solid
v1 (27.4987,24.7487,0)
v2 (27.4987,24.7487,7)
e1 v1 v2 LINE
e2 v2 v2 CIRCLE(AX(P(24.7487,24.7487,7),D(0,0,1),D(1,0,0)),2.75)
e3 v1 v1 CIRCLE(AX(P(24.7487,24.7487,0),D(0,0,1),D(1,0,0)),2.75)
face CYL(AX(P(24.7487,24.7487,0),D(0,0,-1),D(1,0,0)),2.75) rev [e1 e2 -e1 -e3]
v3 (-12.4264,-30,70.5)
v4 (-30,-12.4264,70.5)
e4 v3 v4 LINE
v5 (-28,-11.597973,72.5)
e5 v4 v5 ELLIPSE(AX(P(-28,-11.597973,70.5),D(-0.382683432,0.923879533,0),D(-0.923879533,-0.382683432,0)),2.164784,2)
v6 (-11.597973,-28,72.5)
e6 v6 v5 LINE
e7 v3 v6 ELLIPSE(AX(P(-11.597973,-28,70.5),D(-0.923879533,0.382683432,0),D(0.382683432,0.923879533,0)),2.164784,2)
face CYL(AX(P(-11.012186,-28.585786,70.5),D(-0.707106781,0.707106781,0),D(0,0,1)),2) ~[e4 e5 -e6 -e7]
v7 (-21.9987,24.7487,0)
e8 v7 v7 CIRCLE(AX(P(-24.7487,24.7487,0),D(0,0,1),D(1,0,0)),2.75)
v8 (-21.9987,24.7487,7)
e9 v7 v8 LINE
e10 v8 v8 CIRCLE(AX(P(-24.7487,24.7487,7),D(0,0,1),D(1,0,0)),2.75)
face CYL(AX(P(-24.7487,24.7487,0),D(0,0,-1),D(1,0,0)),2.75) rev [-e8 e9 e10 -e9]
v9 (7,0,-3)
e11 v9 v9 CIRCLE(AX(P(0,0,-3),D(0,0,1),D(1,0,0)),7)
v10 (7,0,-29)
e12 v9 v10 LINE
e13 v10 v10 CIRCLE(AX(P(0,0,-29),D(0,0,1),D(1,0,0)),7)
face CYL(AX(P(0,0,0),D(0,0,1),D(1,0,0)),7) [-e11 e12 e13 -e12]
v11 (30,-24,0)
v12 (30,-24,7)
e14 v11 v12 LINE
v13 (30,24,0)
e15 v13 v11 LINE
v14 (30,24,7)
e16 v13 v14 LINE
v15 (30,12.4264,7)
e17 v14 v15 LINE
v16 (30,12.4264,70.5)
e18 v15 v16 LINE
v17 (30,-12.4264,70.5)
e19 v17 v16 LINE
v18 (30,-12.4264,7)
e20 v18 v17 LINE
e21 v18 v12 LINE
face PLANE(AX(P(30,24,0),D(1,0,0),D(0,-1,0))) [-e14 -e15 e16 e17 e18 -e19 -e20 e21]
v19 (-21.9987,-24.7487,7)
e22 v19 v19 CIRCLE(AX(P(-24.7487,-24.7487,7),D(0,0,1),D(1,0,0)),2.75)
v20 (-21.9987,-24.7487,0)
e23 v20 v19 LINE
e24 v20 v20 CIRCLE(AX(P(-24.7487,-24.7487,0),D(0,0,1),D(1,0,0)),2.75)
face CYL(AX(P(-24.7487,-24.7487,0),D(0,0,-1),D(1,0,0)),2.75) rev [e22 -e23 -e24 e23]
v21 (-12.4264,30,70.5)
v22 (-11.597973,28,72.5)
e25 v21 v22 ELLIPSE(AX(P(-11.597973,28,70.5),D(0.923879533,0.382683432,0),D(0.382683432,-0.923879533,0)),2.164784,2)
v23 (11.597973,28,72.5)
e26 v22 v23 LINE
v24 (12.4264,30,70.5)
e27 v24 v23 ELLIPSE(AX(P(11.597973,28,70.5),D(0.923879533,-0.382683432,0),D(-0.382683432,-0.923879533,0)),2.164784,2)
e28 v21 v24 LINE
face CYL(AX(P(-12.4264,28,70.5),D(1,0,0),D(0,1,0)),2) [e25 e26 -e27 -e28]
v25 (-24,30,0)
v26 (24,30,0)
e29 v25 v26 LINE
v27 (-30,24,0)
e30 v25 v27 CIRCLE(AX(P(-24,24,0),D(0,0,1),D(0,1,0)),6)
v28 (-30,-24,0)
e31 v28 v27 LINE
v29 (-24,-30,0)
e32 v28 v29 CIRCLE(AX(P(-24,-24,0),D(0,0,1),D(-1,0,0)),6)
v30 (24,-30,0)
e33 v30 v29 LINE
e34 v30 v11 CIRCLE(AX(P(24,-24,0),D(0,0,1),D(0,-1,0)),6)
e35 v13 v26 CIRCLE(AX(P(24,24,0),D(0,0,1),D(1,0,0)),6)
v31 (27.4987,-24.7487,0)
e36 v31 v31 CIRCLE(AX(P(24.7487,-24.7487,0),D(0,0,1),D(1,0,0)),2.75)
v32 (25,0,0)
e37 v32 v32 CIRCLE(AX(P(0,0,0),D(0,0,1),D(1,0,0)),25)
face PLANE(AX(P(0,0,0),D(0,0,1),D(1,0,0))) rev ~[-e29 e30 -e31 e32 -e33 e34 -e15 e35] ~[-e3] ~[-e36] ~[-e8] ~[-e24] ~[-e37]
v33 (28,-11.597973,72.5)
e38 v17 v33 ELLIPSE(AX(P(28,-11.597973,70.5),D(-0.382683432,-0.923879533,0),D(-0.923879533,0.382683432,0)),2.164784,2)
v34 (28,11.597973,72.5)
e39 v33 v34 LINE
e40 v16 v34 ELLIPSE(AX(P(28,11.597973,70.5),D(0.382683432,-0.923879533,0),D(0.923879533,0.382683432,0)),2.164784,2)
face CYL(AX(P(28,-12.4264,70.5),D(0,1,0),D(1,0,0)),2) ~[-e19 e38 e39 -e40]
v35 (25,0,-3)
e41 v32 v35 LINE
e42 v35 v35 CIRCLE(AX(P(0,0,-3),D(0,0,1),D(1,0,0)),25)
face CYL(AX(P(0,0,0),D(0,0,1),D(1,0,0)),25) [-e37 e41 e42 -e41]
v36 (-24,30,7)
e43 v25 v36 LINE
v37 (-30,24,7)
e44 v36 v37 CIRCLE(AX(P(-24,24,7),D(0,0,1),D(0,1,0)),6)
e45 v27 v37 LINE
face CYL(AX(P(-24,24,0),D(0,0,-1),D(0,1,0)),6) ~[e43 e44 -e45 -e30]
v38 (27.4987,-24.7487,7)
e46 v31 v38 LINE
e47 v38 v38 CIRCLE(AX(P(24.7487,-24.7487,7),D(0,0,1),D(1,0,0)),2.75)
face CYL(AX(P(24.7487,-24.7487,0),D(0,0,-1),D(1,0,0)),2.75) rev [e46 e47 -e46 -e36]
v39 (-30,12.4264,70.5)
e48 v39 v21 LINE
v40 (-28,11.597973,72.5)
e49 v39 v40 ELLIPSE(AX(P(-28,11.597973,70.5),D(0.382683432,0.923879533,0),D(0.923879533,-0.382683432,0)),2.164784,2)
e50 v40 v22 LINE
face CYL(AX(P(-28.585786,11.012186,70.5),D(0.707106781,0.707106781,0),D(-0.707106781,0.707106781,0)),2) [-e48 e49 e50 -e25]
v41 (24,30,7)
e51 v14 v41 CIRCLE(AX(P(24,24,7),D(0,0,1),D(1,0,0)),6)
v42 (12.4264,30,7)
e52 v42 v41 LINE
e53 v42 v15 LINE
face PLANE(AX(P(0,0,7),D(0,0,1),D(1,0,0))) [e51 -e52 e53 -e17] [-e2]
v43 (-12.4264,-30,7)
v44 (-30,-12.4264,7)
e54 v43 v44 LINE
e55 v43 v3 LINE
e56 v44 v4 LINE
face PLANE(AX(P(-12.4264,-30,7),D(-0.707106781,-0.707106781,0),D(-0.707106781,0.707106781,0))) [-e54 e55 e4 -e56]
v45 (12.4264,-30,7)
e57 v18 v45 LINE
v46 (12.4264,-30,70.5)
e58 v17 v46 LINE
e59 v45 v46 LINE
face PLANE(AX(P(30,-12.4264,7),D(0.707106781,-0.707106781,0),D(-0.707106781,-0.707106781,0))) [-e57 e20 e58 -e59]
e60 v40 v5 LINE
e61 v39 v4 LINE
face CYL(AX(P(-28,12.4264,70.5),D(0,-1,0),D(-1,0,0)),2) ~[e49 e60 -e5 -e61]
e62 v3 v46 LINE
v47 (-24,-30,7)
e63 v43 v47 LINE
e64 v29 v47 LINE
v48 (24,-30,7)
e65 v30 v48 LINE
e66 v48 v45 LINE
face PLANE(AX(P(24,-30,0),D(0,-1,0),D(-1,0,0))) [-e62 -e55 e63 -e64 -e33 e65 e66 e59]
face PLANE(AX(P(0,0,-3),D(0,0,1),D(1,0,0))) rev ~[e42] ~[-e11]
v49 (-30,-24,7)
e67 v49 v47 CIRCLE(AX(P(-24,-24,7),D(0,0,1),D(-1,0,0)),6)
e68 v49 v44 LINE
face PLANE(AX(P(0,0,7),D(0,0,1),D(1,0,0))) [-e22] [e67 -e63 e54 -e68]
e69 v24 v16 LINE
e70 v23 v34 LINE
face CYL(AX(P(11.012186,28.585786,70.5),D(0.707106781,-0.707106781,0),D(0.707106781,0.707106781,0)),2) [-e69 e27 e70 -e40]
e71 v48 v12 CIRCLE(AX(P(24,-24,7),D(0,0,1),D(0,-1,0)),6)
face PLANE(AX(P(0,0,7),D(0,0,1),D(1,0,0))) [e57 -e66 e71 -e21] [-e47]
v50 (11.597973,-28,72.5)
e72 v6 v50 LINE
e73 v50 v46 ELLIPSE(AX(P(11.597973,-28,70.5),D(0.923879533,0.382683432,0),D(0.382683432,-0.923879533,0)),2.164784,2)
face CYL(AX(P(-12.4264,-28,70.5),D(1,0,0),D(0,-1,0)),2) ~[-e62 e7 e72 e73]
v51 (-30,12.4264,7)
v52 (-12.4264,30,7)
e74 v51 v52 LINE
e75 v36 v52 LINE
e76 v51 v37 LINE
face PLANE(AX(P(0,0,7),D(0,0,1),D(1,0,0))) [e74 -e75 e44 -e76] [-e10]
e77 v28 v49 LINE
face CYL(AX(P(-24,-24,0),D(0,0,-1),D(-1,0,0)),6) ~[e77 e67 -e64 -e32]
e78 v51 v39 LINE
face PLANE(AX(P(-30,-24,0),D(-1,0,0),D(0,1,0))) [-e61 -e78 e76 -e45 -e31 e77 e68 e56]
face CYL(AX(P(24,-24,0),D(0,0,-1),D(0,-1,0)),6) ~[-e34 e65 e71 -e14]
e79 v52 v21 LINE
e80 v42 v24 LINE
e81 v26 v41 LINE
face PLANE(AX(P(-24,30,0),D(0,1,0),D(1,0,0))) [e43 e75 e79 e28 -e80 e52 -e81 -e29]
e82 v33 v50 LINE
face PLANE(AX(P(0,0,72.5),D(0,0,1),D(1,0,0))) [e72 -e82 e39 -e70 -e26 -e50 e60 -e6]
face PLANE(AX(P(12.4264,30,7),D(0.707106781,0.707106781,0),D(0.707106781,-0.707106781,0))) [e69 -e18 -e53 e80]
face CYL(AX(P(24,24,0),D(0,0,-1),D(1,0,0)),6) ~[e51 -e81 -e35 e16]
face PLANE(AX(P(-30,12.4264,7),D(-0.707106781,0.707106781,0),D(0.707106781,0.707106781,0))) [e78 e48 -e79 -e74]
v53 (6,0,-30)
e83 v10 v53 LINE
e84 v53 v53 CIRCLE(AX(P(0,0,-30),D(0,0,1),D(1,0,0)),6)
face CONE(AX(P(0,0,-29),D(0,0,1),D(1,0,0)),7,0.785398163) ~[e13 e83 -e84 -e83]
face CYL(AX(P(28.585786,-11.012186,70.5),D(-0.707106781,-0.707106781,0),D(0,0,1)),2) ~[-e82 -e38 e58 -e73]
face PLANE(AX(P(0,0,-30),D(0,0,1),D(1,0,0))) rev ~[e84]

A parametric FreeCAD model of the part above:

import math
import FreeCAD as App
import Part
import Sketcher
from FreeCAD import Vector


def edges_at(feature, points):
    """Names of the edges that pass closest to the given points."""
    edges = feature.Shape.Edges
    near = lambda p: min(range(len(edges)), key=lambda i: edges[i].distToShape(Part.Vertex(*p))[0])
    return sorted({f"Edge{near(p) + 1}" for p in points})

doc = App.newDocument("Part")
params = doc.addObject("Spreadsheet::Sheet", "Params")
for row, (alias, value) in enumerate([
    ("sketch1_radius", "6 mm"),
    ("sketch1_diameter", "5.5 mm"),
    ("sketch1_width", "48 mm"),
    ("pad1_length", "7 mm"),
    ("sketch2_diameter", "50 mm"),
    ("sketch2_diameter2", "14 mm"),
    ("pad2_length", "3 mm"),
    ("sketch3_diameter", "14 mm"),
    ("pad3_length", "30 mm"),
    ("pad4_length", "65.5 mm"),
    ("fillet_radius", "2 mm"),
    ("chamfer_size", "1 mm"),
], start=1):
    params.set(f"A{row}", alias)
    params.set(f"B{row}", "=" + value)
    params.setAlias(f"B{row}", alias)

body = doc.addObject("PartDesign::Body", "Body")

sketch1 = doc.addObject("Sketcher::SketchObject", "Sketch")
body.addObject(sketch1)
sketch1.AttachmentSupport = (doc.XY_Plane, [""])
sketch1.MapMode = "FlatFace"
sketch1.addGeometry([
    Part.LineSegment(Vector(24, 30, 0), Vector(-24, 30, 0)),
    Part.ArcOfCircle(Part.Circle(Vector(-24, 24, 0), Vector(0, 0, 1), 6), math.radians(90), math.radians(180)),
    Part.LineSegment(Vector(-30, 24, 0), Vector(-30, -24, 0)),
    Part.ArcOfCircle(Part.Circle(Vector(-24, -24, 0), Vector(0, 0, 1), 6), math.radians(180), math.radians(270)),
    Part.LineSegment(Vector(-24, -30, 0), Vector(24, -30, 0)),
    Part.ArcOfCircle(Part.Circle(Vector(24, -24, 0), Vector(0, 0, 1), 6), math.radians(-90), math.radians(0)),
    Part.LineSegment(Vector(30, -24, 0), Vector(30, 24, 0)),
    Part.ArcOfCircle(Part.Circle(Vector(24, 24, 0), Vector(0, 0, 1), 6), math.radians(0), math.radians(90)),
    Part.Circle(Vector(-24.7487, -24.7487, 0), Vector(0, 0, 1), 2.75),
    Part.Circle(Vector(24.7487, -24.7487, 0), Vector(0, 0, 1), 2.75),
    Part.Circle(Vector(-24.7487, 24.7487, 0), Vector(0, 0, 1), 2.75),
    Part.Circle(Vector(24.7487, 24.7487, 0), Vector(0, 0, 1), 2.75),
], False)
sketch1.addConstraint([
    Sketcher.Constraint("Tangent", 0, 2, 1, 1),
    Sketcher.Constraint("Tangent", 1, 2, 2, 1),
    Sketcher.Constraint("Tangent", 2, 2, 3, 1),
    Sketcher.Constraint("Tangent", 3, 2, 4, 1),
    Sketcher.Constraint("Tangent", 4, 2, 5, 1),
    Sketcher.Constraint("Tangent", 5, 2, 6, 1),
    Sketcher.Constraint("Tangent", 6, 2, 7, 1),
    Sketcher.Constraint("Tangent", 7, 2, 0, 1),
    Sketcher.Constraint("Horizontal", 0),
    Sketcher.Constraint("Vertical", 2),
    Sketcher.Constraint("Horizontal", 4),
    Sketcher.Constraint("Vertical", 6),
    Sketcher.Constraint("Equal", 1, 3),
    Sketcher.Constraint("Equal", 3, 5),
    Sketcher.Constraint("Equal", 5, 7),
    Sketcher.Constraint("Equal", 8, 9),
    Sketcher.Constraint("Equal", 9, 10),
    Sketcher.Constraint("Equal", 10, 11),
    Sketcher.Constraint("Symmetric", 1, 3, 5, 3, -1, 1),
    Sketcher.Constraint("Symmetric", 9, 3, 10, 3, -1, 1),
    Sketcher.Constraint("Symmetric", 8, 3, 11, 3, -1, 1),
    Sketcher.Constraint("Symmetric", 8, 3, 9, 3, -2),
    Sketcher.Constraint("Equal", 4, 2),
    Sketcher.Constraint("Radius", 1, 6.0),
    Sketcher.Constraint("Diameter", 8, 5.5),
    Sketcher.Constraint("DistanceX", 0, 2, 0, 1, 48.0),
    Sketcher.Constraint("DistanceX", 8, 3, -1, 1, 24.7487),
    Sketcher.Constraint("DistanceY", 8, 3, -1, 1, 24.7487),
])
sketch1.setExpression("Constraints[23]", "Params.sketch1_radius")
sketch1.setExpression("Constraints[24]", "Params.sketch1_diameter")
sketch1.setExpression("Constraints[25]", "Params.sketch1_width")
pad1 = doc.addObject("PartDesign::Pad", "Pad")
body.addObject(pad1)
pad1.Profile = sketch1
pad1.setExpression("Length", "Params.pad1_length")

sketch2 = doc.addObject("Sketcher::SketchObject", "Sketch001")
body.addObject(sketch2)
sketch2.AttachmentSupport = (doc.XY_Plane, [""])
sketch2.MapMode = "FlatFace"
sketch2.addGeometry([
    Part.Circle(Vector(0, 0, 0), Vector(0, 0, 1), 25),
    Part.Circle(Vector(0, 0, 0), Vector(0, 0, 1), 7),
], False)
sketch2.addConstraint([
    Sketcher.Constraint("Coincident", 0, 3, -1, 1),
    Sketcher.Constraint("Coincident", 1, 3, -1, 1),
    Sketcher.Constraint("Diameter", 0, 50.0),
    Sketcher.Constraint("Diameter", 1, 14.0),
])
sketch2.setExpression("Constraints[2]", "Params.sketch2_diameter")
sketch2.setExpression("Constraints[3]", "Params.sketch2_diameter2")
pad2 = doc.addObject("PartDesign::Pad", "Pad001")
body.addObject(pad2)
pad2.Profile = sketch2
pad2.setExpression("Length", "Params.pad2_length")
pad2.Reversed = True

sketch3 = doc.addObject("Sketcher::SketchObject", "Sketch002")
body.addObject(sketch3)
sketch3.AttachmentSupport = (doc.XY_Plane, [""])
sketch3.MapMode = "FlatFace"
sketch3.addGeometry(Part.Circle(Vector(0, 0, 0), Vector(0, 0, 1), 7), False)
sketch3.addConstraint([
    Sketcher.Constraint("Coincident", 0, 3, -1, 1),
    Sketcher.Constraint("Diameter", 0, 14.0),
])
sketch3.setExpression("Constraints[1]", "Params.sketch3_diameter")
pad3 = doc.addObject("PartDesign::Pad", "Pad002")
body.addObject(pad3)
pad3.Profile = sketch3
pad3.setExpression("Length", "Params.pad3_length")
pad3.Reversed = True

sketch4 = doc.addObject("Sketcher::SketchObject", "Sketch003")
body.addObject(sketch4)
sketch4.AttachmentSupport = (doc.XY_Plane, [""])
sketch4.MapMode = "FlatFace"
sketch4.AttachmentOffset = App.Placement(Vector(0, 0, 7), App.Rotation())
sketch4.addGeometry([
    Part.LineSegment(Vector(-12.4264, 30, 0), Vector(-30, 12.4264, 0)),
    Part.LineSegment(Vector(-30, 12.4264, 0), Vector(-30, -12.4264, 0)),
    Part.LineSegment(Vector(-30, -12.4264, 0), Vector(-12.4264, -30, 0)),
    Part.LineSegment(Vector(-12.4264, -30, 0), Vector(12.4264, -30, 0)),
    Part.LineSegment(Vector(12.4264, -30, 0), Vector(30, -12.4264, 0)),
    Part.LineSegment(Vector(30, -12.4264, 0), Vector(30, 12.4264, 0)),
    Part.LineSegment(Vector(30, 12.4264, 0), Vector(12.4264, 30, 0)),
    Part.LineSegment(Vector(12.4264, 30, 0), Vector(-12.4264, 30, 0)),
], False)
sketch4.addConstraint([
    Sketcher.Constraint("Coincident", 0, 2, 1, 1),
    Sketcher.Constraint("Coincident", 1, 2, 2, 1),
    Sketcher.Constraint("Coincident", 2, 2, 3, 1),
    Sketcher.Constraint("Coincident", 3, 2, 4, 1),
    Sketcher.Constraint("Coincident", 4, 2, 5, 1),
    Sketcher.Constraint("Coincident", 5, 2, 6, 1),
    Sketcher.Constraint("Coincident", 6, 2, 7, 1),
    Sketcher.Constraint("Coincident", 7, 2, 0, 1),
    Sketcher.Constraint("Vertical", 1),
    Sketcher.Constraint("Horizontal", 3),
    Sketcher.Constraint("Vertical", 5),
    Sketcher.Constraint("Horizontal", 7),
    Sketcher.Constraint("Symmetric", 0, 2, 4, 2, -1, 1),
    Sketcher.Constraint("Symmetric", 2, 2, 6, 2, -1, 1),
    Sketcher.Constraint("Perpendicular", 0, 2),
    Sketcher.Constraint("Perpendicular", 2, 4),
    Sketcher.Constraint("Perpendicular", 4, 6),
    Sketcher.Constraint("Horizontal", 1, 2, 4, 2),
    Sketcher.Constraint("Vertical", 3, 2, 6, 2),
    Sketcher.Constraint("Equal", 7, 1),
    Sketcher.Constraint("DistanceX", 0, 2, -1, 1, 30.0),
    Sketcher.Constraint("DistanceX", 3, 1, 3, 2, 24.8528),
])
pad4 = doc.addObject("PartDesign::Pad", "Pad003")
body.addObject(pad4)
pad4.Profile = sketch4
pad4.setExpression("Length", "Params.pad4_length")
doc.recompute()

fillet = doc.addObject("PartDesign::Fillet", "Fillet")
body.addObject(fillet)
fillet.Base = (pad4, edges_at(pad4, [
    (30, 0, 72.5),
    (21.213, 21.213, 72.5),
    (0, 30, 72.5),
    (-21.213, 21.213, 72.5),
    (-30, 0, 72.5),
    (21.213, -21.213, 72.5),
    (0, -30, 72.5),
    (-21.213, -21.213, 72.5),
]))
fillet.setExpression("Radius", "Params.fillet_radius")
doc.recompute()

chamfer = doc.addObject("PartDesign::Chamfer", "Chamfer")
body.addObject(chamfer)
chamfer.Base = (fillet, edges_at(fillet, [(-7, 0, -30)]))
chamfer.setExpression("Size", "Params.chamfer_size")

doc.recompute()
